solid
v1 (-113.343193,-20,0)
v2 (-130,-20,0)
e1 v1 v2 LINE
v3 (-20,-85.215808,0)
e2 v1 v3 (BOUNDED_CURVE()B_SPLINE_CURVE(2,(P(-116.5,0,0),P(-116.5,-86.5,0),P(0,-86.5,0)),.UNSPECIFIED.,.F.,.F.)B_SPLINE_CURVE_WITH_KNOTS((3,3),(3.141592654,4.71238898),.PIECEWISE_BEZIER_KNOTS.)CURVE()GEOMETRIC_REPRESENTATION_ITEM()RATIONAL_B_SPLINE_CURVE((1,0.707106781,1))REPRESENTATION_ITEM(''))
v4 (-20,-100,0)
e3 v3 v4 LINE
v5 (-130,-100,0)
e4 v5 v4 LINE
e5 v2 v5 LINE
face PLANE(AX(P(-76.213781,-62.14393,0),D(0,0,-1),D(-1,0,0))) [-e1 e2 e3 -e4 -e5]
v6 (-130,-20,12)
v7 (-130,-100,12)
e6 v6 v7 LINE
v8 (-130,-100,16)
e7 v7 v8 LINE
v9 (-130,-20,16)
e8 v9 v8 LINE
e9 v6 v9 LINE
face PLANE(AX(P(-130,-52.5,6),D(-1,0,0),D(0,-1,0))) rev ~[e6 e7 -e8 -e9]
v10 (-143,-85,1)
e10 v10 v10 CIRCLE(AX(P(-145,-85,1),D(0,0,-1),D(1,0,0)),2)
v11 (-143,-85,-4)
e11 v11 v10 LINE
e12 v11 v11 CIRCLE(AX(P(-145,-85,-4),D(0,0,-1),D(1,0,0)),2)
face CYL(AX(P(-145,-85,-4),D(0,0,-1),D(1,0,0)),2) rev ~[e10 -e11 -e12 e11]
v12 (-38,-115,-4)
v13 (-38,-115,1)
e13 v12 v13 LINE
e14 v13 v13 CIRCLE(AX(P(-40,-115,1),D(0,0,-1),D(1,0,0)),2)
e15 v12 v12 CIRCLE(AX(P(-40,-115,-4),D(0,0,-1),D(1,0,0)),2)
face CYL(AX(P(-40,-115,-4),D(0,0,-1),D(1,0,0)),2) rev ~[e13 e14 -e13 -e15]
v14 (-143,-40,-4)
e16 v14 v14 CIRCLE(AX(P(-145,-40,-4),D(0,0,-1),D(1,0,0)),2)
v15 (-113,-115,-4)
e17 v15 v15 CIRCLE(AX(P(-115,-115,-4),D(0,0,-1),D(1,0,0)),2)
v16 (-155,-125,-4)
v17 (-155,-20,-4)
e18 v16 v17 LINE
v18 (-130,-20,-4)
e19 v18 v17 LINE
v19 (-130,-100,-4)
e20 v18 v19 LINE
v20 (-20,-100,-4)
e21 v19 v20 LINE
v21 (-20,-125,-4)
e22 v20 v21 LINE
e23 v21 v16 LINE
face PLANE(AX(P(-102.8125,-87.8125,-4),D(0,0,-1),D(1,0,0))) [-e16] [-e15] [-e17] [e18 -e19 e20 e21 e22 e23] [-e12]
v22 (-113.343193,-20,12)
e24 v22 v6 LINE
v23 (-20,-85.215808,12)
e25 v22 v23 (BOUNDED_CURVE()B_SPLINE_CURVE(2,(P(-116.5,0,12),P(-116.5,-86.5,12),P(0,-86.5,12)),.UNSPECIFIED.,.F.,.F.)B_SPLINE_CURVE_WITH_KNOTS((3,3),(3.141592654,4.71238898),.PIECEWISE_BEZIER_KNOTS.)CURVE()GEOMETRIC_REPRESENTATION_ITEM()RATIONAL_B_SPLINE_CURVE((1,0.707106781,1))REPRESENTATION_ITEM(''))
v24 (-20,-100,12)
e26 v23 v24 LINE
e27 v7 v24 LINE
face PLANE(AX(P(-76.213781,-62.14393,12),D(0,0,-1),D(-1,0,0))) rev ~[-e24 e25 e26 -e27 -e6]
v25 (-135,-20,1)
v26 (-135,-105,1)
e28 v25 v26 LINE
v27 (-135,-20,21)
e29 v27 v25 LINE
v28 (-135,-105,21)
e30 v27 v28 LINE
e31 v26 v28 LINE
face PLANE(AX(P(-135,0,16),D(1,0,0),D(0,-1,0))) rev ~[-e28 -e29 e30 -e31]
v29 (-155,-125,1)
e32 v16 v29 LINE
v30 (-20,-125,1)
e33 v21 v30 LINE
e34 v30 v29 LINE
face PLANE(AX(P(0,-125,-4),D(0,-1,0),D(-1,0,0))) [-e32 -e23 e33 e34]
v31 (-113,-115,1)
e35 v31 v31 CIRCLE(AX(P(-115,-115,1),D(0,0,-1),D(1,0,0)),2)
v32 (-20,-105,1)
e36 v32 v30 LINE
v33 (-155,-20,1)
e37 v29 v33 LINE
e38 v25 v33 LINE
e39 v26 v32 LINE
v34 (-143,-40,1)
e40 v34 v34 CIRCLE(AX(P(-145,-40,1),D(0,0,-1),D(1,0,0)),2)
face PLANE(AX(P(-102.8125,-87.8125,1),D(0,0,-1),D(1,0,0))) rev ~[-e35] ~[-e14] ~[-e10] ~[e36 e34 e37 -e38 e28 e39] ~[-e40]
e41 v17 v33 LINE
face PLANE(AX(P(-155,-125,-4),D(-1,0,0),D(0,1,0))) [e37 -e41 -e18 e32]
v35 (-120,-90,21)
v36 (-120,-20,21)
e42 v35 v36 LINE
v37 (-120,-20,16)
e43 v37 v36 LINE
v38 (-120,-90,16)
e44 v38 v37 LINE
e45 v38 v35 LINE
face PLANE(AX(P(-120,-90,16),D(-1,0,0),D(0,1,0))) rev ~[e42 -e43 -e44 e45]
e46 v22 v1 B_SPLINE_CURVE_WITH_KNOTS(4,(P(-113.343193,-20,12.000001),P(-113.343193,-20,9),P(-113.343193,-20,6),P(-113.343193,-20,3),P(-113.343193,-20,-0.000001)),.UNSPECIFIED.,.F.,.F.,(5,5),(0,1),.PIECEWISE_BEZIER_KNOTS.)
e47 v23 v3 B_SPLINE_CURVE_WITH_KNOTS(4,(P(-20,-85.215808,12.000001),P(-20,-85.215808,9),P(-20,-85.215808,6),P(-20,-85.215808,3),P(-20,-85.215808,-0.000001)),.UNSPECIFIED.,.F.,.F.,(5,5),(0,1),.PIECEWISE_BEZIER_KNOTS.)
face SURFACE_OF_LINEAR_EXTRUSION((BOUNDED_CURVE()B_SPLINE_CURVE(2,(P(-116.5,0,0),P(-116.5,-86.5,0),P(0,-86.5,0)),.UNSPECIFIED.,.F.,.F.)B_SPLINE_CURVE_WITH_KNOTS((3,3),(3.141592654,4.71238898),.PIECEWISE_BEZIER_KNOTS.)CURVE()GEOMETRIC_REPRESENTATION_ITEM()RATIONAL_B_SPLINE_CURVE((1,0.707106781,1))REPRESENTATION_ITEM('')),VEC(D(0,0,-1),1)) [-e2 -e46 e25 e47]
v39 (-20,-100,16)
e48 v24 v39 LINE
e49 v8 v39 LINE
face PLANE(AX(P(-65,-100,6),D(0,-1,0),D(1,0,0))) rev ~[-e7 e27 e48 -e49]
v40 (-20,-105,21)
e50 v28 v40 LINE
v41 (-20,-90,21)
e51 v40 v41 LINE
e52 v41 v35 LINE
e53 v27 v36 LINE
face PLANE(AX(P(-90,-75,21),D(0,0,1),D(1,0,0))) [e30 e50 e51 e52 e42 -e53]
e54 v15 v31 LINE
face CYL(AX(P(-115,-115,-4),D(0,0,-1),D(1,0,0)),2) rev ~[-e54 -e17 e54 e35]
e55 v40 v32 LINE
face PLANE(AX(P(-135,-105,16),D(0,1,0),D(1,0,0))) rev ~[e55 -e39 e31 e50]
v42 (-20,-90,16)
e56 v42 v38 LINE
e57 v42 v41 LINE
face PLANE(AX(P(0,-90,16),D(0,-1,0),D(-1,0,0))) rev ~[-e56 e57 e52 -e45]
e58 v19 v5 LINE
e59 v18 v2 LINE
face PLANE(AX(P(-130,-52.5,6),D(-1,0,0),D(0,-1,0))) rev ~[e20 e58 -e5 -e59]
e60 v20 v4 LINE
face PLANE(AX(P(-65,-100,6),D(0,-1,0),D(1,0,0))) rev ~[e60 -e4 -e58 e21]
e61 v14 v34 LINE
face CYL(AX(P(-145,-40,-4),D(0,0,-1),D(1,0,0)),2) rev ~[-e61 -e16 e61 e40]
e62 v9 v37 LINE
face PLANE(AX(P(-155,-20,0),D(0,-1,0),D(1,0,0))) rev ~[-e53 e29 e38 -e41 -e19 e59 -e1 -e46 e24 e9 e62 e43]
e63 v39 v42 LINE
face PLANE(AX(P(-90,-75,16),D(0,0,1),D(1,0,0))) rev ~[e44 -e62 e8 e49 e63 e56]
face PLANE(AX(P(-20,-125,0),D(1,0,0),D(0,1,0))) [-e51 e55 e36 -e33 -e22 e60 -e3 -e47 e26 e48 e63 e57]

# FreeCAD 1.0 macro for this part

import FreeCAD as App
import Part
import Sketcher
Q = App.Units.Quantity

doc = App.newDocument("Part")
body = doc.addObject("PartDesign::Body", "Body")

sketch1 = body.newObject("Sketcher::SketchObject", "Sketch")
sketch1.AttachmentSupport = (doc.getObject("XY_Plane"), [""])
sketch1.MapMode = "FlatFace"
sketch1.addGeometry([
    Part.BSplineCurve([App.Vector(-116.5, 0, 0), App.Vector(-116.5, -86.5, 0), App.Vector(0, -86.5, 0)], [3, 3], [3.141592654, 4.71238898], False, 2, [1, 0.707106781, 1], False),
    Part.LineSegment(App.Vector(-116.5, 0, 0), App.Vector(-130, 0, 0)),
    Part.LineSegment(App.Vector(-130, 0, 0), App.Vector(-130, -100, 0)),
    Part.LineSegment(App.Vector(-130, -100, 0), App.Vector(0, -100, 0)),
    Part.LineSegment(App.Vector(0, -100, 0), App.Vector(0, -86.5, 0)),
], False)
sketch1.addConstraint([
    Sketcher.Constraint("Block", 0),
    Sketcher.Constraint("Coincident", 0, 1, 1, 1),
    Sketcher.Constraint("Coincident", 1, 2, 2, 1),
    Sketcher.Constraint("Coincident", 2, 2, 3, 1),
    Sketcher.Constraint("Coincident", 3, 2, 4, 1),
    Sketcher.Constraint("Coincident", 4, 2, 0, 2),
    Sketcher.Constraint("Horizontal", 1),
    Sketcher.Constraint("Vertical", 2),
    Sketcher.Constraint("Horizontal", 3),
    Sketcher.Constraint("Vertical", 4),
    Sketcher.Constraint("Equal", 1, 4),
    Sketcher.Constraint("DistanceX", 3, 1, 3, 2, Q("130 mm")),
])
pad1 = body.newObject("PartDesign::Pad", "Pad")
pad1.Profile = sketch1
pad1.Length = 12

sketch2 = body.newObject("Sketcher::SketchObject", "Sketch001")
sketch2.AttachmentSupport = (doc.getObject("XZ_Plane"), [""])
sketch2.MapMode = "FlatFace"
sketch2.AttachmentOffset = App.Placement(App.Vector(0, 0, 100), App.Rotation())
sketch2.addGeometry([
    Part.LineSegment(App.Vector(-130, 16, 0), App.Vector(-130, -4, 0)),
    Part.LineSegment(App.Vector(-130, -4, 0), App.Vector(0, -4, 0)),
    Part.LineSegment(App.Vector(0, -4, 0), App.Vector(0, 16, 0)),
    Part.LineSegment(App.Vector(0, 16, 0), App.Vector(-130, 16, 0)),
], False)
sketch2.addConstraint([
    Sketcher.Constraint("Coincident", 0, 2, 1, 1),
    Sketcher.Constraint("Coincident", 1, 2, 2, 1),
    Sketcher.Constraint("Coincident", 2, 2, 3, 1),
    Sketcher.Constraint("Coincident", 3, 2, 0, 1),
    Sketcher.Constraint("Vertical", 0),
    Sketcher.Constraint("Horizontal", 1),
    Sketcher.Constraint("Vertical", 2),
    Sketcher.Constraint("Horizontal", 3),
    Sketcher.Constraint("PointOnObject", 1, 2, -2),
    Sketcher.Constraint("DistanceX", 1, 1, 1, 2, Q("130 mm")),
    Sketcher.Constraint("DistanceY", 0, 2, 0, 1, Q("20 mm")),
    Sketcher.Constraint("DistanceY", 0, 2, -1, 1, Q("4 mm")),
])
pad2 = body.newObject("PartDesign::Pad", "Pad001")
pad2.Profile = sketch2
pad2.Length = 5

sketch3 = body.newObject("Sketcher::SketchObject", "Sketch002")
sketch3.AttachmentSupport = (doc.getObject("YZ_Plane"), [""])
sketch3.MapMode = "FlatFace"
sketch3.AttachmentOffset = App.Placement(App.Vector(0, 0, -130), App.Rotation())
sketch3.addGeometry([
    Part.LineSegment(App.Vector(0, 16, 0), App.Vector(0, -4, 0)),
    Part.LineSegment(App.Vector(0, -4, 0), App.Vector(-105, -4, 0)),
    Part.LineSegment(App.Vector(-105, -4, 0), App.Vector(-105, 16, 0)),
    Part.LineSegment(App.Vector(-105, 16, 0), App.Vector(0, 16, 0)),
], False)
sketch3.addConstraint([
    Sketcher.Constraint("Coincident", 0, 2, 1, 1),
    Sketcher.Constraint("Coincident", 1, 2, 2, 1),
    Sketcher.Constraint("Coincident", 2, 2, 3, 1),
    Sketcher.Constraint("Coincident", 3, 2, 0, 1),
    Sketcher.Constraint("Vertical", 0),
    Sketcher.Constraint("Horizontal", 1),
    Sketcher.Constraint("Vertical", 2),
    Sketcher.Constraint("Horizontal", 3),
    Sketcher.Constraint("PointOnObject", 0, 2, -2),
    Sketcher.Constraint("DistanceX", 1, 2, 1, 1, Q("105 mm")),
    Sketcher.Constraint("DistanceY", 0, 2, 0, 1, Q("20 mm")),
    Sketcher.Constraint("DistanceY", 0, 2, -1, 1, Q("4 mm")),
])
pad3 = body.newObject("PartDesign::Pad", "Pad002")
pad3.Profile = sketch3
pad3.Length = 5
pad3.Reversed = True

sketch4 = body.newObject("Sketcher::SketchObject", "Sketch003")
sketch4.AttachmentSupport = (doc.getObject("XY_Plane"), [""])
sketch4.MapMode = "FlatFace"
sketch4.AttachmentOffset = App.Placement(App.Vector(0, 0, -4), App.Rotation())
sketch4.addGeometry([
    Part.LineSegment(App.Vector(0, -105, 0), App.Vector(0, -125, 0)),
    Part.LineSegment(App.Vector(0, -125, 0), App.Vector(-155, -125, 0)),
    Part.LineSegment(App.Vector(-155, -125, 0), App.Vector(-155, 0, 0)),
    Part.LineSegment(App.Vector(-155, 0, 0), App.Vector(-135, 0, 0)),
    Part.LineSegment(App.Vector(-135, 0, 0), App.Vector(-135, -105, 0)),
    Part.LineSegment(App.Vector(-135, -105, 0), App.Vector(0, -105, 0)),
    Part.Circle(App.Vector(-145, -40, 0), App.Vector(0, 0, 1), 2),
    Part.Circle(App.Vector(-145, -85, 0), App.Vector(0, 0, 1), 2),
    Part.Circle(App.Vector(-115, -115, 0), App.Vector(0, 0, 1), 2),
    Part.Circle(App.Vector(-40, -115, 0), App.Vector(0, 0, 1), 2),
], False)
sketch4.addConstraint([
    Sketcher.Constraint("Coincident", 0, 2, 1, 1),
    Sketcher.Constraint("Coincident", 1, 2, 2, 1),
    Sketcher.Constraint("Coincident", 2, 2, 3, 1),
    Sketcher.Constraint("Coincident", 3, 2, 4, 1),
    Sketcher.Constraint("Coincident", 4, 2, 5, 1),
    Sketcher.Constraint("Coincident", 5, 2, 0, 1),
    Sketcher.Constraint("Vertical", 0),
    Sketcher.Constraint("Horizontal", 1),
    Sketcher.Constraint("Vertical", 2),
    Sketcher.Constraint("Horizontal", 3),
    Sketcher.Constraint("Vertical", 4),
    Sketcher.Constraint("Horizontal", 5),
    Sketcher.Constraint("Equal", 6, 7),
    Sketcher.Constraint("Equal", 7, 8),
    Sketcher.Constraint("Equal", 8, 9),
    Sketcher.Constraint("PointOnObject", 0, 2, -2),
    Sketcher.Constraint("PointOnObject", 2, 2, -1),
    Sketcher.Constraint("Horizontal", 8, 3, 9, 3),
    Sketcher.Constraint("Vertical", 6, 3, 7, 3),
    Sketcher.Constraint("Equal", 3, 0),
    Sketcher.Constraint("Diameter", 6, Q("4 mm")),
    Sketcher.Constraint("DistanceX", 1, 2, 1, 1, Q("155 mm")),
    Sketcher.Constraint("DistanceX", 3, 1, 3, 2, Q("20 mm")),
    Sketcher.Constraint("DistanceY", 2, 1, 2, 2, Q("125 mm")),
    Sketcher.Constraint("DistanceX", 6, 3, -1, 1, Q("145 mm")),
    Sketcher.Constraint("DistanceY", 6, 3, -1, 1, Q("40 mm")),
    Sketcher.Constraint("DistanceY", 7, 3, -1, 1, Q("85 mm")),
    Sketcher.Constraint("DistanceX", 8, 3, -1, 1, Q("115 mm")),
    Sketcher.Constraint("DistanceY", 8, 3, -1, 1, Q("115 mm")),
    Sketcher.Constraint("DistanceX", 9, 3, -1, 1, Q("40 mm")),
])
pad4 = body.newObject("PartDesign::Pad", "Pad003")
pad4.Profile = sketch4
pad4.Length = 5

sketch5 = body.newObject("Sketcher::SketchObject", "Sketch004")
sketch5.AttachmentSupport = (doc.getObject("XY_Plane"), [""])
sketch5.MapMode = "FlatFace"
sketch5.AttachmentOffset = App.Placement(App.Vector(0, 0, 16), App.Rotation())
sketch5.addGeometry([
    Part.LineSegment(App.Vector(-120, 0, 0), App.Vector(-135, 0, 0)),
    Part.LineSegment(App.Vector(-135, 0, 0), App.Vector(-135, -105, 0)),
    Part.LineSegment(App.Vector(-135, -105, 0), App.Vector(0, -105, 0)),
    Part.LineSegment(App.Vector(0, -105, 0), App.Vector(0, -90, 0)),
    Part.LineSegment(App.Vector(0, -90, 0), App.Vector(-120, -90, 0)),
    Part.LineSegment(App.Vector(-120, -90, 0), App.Vector(-120, 0, 0)),
], False)
sketch5.addConstraint([
    Sketcher.Constraint("Coincident", 0, 2, 1, 1),
    Sketcher.Constraint("Coincident", 1, 2, 2, 1),
    Sketcher.Constraint("Coincident", 2, 2, 3, 1),
    Sketcher.Constraint("Coincident", 3, 2, 4, 1),
    Sketcher.Constraint("Coincident", 4, 2, 5, 1),
    Sketcher.Constraint("Coincident", 5, 2, 0, 1),
    Sketcher.Constraint("Horizontal", 0),
    Sketcher.Constraint("Vertical", 1),
    Sketcher.Constraint("Horizontal", 2),
    Sketcher.Constraint("Vertical", 3),
    Sketcher.Constraint("Horizontal", 4),
    Sketcher.Constraint("Vertical", 5),
    Sketcher.Constraint("PointOnObject", 0, 2, -1),
    Sketcher.Constraint("PointOnObject", 2, 2, -2),
    Sketcher.Constraint("Equal", 0, 3),
    Sketcher.Constraint("DistanceX", 0, 2, 0, 1, Q("15 mm")),
    Sketcher.Constraint("DistanceX", 2, 1, 2, 2, Q("135 mm")),
    Sketcher.Constraint("DistanceY", 1, 2, 1, 1, Q("105 mm")),
])
pad5 = body.newObject("PartDesign::Pad", "Pad004")
pad5.Profile = sketch5
pad5.Length = 5

sketch6 = body.newObject("Sketcher::SketchObject", "Sketch005")
sketch6.AttachmentSupport = (doc.getObject("XY_Plane"), [""])
sketch6.MapMode = "FlatFace"
sketch6.addGeometry([
    Part.LineSegment(App.Vector(-155, 0, 0), App.Vector(-155, -20, 0)),
    Part.LineSegment(App.Vector(-155, -20, 0), App.Vector(-20, -20, 0)),
    Part.LineSegment(App.Vector(-20, -20, 0), App.Vector(-20, -125, 0)),
    Part.LineSegment(App.Vector(-20, -125, 0), App.Vector(0, -125, 0)),
    Part.LineSegment(App.Vector(0, -125, 0), App.Vector(0, 0, 0)),
    Part.LineSegment(App.Vector(0, 0, 0), App.Vector(-155, 0, 0)),
], False)
sketch6.addConstraint([
    Sketcher.Constraint("Coincident", 0, 2, 1, 1),
    Sketcher.Constraint("Coincident", 1, 2, 2, 1),
    Sketcher.Constraint("Coincident", 2, 2, 3, 1),
    Sketcher.Constraint("Coincident", 3, 2, 4, 1),
    Sketcher.Constraint("Coincident", 4, 2, 5, 1),
    Sketcher.Constraint("Coincident", 5, 2, 0, 1),
    Sketcher.Constraint("Vertical", 0),
    Sketcher.Constraint("Horizontal", 1),
    Sketcher.Constraint("Vertical", 2),
    Sketcher.Constraint("Horizontal", 3),
    Sketcher.Constraint("Vertical", 4),
    Sketcher.Constraint("Horizontal", 5),
    Sketcher.Constraint("Coincident", 4, 2, -1, 1),
    Sketcher.Constraint("Equal", 3, 0),
    Sketcher.Constraint("DistanceX", 1, 1, 1, 2, Q("135 mm")),
    Sketcher.Constraint("DistanceX", 3, 1, 3, 2, Q("20 mm")),
    Sketcher.Constraint("DistanceY", 2, 2, 2, 1, Q("105 mm")),
])
pocket1 = body.newObject("PartDesign::Pocket", "Pocket")
pocket1.Profile = sketch6
pocket1.Length = 50
pocket1.Midplane = True

doc.recompute()
